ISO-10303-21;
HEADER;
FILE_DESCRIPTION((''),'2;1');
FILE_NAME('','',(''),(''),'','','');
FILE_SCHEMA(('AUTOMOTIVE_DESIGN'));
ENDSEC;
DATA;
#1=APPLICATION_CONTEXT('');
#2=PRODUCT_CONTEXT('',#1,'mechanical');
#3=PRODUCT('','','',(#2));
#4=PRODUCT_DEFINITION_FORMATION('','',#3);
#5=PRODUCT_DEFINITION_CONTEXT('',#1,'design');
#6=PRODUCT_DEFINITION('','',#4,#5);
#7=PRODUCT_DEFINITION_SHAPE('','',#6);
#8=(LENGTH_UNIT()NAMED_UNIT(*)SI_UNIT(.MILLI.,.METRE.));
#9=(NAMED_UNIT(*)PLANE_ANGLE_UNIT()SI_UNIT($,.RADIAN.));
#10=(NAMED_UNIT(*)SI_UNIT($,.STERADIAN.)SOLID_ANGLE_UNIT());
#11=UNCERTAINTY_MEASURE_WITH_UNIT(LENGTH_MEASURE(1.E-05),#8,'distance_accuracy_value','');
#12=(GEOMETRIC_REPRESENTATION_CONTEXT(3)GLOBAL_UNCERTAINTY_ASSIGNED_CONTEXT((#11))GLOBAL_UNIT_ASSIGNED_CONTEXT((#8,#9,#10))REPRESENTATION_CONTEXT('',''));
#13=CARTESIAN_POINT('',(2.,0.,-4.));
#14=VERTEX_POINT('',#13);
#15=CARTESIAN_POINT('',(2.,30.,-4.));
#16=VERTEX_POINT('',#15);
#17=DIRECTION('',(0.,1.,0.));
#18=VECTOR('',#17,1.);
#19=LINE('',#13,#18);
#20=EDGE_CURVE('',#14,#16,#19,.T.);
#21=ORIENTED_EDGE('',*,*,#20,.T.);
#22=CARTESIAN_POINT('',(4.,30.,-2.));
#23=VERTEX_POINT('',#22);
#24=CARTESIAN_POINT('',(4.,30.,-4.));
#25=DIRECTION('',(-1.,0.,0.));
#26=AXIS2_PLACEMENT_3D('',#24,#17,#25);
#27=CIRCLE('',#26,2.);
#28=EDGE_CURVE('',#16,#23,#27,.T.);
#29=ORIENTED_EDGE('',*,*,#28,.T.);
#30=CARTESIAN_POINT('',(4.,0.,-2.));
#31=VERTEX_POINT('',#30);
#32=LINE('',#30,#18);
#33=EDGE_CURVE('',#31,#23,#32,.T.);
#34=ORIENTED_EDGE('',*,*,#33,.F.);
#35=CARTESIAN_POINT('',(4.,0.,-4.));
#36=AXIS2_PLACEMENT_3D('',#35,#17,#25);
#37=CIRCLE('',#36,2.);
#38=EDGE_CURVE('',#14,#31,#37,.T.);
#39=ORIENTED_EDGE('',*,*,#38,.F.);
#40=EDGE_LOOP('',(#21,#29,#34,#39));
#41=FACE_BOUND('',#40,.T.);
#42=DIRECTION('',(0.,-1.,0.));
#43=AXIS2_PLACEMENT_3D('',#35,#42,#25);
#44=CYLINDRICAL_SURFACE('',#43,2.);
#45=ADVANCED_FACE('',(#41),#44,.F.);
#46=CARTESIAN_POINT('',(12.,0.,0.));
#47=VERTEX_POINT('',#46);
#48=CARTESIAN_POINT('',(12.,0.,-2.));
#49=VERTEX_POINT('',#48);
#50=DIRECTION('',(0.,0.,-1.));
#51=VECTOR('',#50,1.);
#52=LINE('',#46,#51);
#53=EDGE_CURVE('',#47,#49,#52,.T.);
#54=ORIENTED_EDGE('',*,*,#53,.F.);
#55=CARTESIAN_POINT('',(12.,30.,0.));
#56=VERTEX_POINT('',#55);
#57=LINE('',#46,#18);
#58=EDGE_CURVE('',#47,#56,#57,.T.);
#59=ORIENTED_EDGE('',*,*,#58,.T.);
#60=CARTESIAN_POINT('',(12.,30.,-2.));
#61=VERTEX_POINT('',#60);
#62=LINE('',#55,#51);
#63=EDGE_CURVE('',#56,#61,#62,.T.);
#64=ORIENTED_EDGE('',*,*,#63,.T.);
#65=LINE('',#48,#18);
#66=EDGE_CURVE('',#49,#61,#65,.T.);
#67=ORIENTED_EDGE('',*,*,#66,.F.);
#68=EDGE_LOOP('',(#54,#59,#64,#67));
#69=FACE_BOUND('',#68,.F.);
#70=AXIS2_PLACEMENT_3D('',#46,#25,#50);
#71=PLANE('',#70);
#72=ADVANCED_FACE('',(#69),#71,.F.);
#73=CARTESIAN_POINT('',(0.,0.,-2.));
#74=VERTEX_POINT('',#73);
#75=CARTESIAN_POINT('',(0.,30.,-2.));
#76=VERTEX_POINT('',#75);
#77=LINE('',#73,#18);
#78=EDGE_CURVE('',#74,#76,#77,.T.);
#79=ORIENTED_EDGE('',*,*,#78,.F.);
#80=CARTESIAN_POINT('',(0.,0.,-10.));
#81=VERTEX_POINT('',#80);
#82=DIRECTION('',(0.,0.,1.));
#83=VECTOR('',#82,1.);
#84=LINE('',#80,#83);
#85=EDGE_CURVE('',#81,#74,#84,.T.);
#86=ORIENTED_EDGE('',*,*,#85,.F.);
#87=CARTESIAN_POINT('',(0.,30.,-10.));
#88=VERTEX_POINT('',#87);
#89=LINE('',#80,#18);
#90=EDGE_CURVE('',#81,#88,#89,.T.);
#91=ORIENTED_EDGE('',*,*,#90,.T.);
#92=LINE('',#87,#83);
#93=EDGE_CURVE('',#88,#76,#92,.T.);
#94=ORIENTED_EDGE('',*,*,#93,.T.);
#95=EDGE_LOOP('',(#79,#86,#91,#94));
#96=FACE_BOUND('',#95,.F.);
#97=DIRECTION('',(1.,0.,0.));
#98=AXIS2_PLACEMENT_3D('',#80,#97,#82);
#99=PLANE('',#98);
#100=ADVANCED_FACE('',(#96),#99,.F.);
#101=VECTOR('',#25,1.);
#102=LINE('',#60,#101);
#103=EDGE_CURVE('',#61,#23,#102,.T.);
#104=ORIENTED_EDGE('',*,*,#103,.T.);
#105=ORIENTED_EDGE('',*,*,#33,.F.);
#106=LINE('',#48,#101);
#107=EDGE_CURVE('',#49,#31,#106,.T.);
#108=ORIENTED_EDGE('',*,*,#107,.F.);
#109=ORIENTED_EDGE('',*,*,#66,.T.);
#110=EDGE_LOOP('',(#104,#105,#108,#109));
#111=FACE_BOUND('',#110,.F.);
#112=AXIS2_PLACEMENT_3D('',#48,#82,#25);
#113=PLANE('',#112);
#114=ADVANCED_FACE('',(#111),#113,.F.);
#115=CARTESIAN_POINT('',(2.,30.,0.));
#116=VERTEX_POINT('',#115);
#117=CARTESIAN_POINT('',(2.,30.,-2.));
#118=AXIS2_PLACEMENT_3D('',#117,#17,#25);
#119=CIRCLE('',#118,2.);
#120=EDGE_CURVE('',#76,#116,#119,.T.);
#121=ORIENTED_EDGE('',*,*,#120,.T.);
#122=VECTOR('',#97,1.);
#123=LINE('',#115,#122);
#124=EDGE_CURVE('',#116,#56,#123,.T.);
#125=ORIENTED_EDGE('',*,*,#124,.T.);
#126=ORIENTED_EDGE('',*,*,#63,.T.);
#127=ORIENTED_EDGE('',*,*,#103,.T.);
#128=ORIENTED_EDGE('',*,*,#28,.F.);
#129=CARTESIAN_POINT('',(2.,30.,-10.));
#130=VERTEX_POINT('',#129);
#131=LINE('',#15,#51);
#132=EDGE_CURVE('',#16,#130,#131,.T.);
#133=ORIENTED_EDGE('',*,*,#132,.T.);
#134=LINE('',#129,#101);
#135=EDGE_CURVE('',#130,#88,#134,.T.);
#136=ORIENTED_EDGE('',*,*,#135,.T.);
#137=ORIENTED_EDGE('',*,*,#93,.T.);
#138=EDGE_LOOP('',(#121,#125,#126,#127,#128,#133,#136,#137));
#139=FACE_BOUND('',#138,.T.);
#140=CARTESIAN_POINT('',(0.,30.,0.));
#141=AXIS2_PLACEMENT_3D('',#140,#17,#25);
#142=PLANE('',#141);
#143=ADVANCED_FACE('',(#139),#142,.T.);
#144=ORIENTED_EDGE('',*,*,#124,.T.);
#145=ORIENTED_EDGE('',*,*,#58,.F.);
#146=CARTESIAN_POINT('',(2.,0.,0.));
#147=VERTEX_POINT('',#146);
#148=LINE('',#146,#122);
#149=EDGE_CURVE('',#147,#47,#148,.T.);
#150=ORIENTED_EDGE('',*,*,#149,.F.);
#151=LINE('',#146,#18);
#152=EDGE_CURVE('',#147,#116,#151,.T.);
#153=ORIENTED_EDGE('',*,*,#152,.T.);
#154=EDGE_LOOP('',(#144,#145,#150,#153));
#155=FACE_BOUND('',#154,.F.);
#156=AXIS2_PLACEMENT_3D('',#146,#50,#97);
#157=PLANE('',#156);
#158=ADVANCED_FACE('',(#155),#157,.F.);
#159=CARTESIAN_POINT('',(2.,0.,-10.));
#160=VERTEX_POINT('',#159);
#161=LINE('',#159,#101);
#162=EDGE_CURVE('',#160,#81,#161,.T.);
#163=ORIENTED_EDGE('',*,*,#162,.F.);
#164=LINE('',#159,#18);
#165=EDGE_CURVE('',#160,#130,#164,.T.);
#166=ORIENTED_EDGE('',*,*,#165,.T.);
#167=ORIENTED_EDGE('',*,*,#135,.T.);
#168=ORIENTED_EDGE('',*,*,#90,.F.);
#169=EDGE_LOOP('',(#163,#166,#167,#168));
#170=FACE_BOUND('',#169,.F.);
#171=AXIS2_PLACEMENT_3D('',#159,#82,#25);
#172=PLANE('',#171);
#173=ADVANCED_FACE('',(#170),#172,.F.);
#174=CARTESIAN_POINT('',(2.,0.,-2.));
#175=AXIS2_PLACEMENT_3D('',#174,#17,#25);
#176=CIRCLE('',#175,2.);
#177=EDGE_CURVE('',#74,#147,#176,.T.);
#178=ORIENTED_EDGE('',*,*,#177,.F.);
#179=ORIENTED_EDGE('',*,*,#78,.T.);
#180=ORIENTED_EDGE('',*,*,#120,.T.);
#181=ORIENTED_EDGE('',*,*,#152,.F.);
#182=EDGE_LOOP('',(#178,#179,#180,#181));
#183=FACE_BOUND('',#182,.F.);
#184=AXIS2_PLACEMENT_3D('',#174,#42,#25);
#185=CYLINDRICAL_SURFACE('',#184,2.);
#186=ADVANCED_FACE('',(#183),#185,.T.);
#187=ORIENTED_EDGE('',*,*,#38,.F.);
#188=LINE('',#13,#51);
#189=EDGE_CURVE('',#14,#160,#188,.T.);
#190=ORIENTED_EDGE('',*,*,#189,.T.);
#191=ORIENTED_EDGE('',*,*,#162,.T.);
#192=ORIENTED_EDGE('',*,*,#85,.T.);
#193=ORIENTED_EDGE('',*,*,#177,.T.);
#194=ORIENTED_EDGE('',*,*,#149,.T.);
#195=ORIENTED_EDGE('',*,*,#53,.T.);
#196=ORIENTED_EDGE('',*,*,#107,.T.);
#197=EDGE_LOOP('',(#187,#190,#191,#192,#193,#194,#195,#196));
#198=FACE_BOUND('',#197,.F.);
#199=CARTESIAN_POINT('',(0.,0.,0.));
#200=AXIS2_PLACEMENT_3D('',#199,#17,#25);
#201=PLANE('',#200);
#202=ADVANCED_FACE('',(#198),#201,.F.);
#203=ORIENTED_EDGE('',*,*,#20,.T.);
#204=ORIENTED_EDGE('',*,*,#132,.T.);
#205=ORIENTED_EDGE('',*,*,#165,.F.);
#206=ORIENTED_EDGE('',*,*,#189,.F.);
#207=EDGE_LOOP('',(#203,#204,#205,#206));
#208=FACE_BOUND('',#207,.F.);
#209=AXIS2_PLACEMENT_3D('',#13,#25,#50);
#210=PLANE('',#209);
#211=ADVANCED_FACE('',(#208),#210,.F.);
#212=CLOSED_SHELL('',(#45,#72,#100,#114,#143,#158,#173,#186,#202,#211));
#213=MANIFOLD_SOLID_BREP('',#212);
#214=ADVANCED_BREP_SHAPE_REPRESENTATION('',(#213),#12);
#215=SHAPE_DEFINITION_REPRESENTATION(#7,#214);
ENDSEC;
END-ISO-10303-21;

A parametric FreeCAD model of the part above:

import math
import FreeCAD as App
import Part
import Sketcher
Q = App.Units.Quantity

doc = App.newDocument("Part")
params = doc.addObject("Spreadsheet::Sheet", "Params")
for row, (alias, value) in enumerate([
    ("sketch1_radius", "2 mm"),
    ("sketch1_width", "10 mm"),
    ("pad1_length", "30 mm"),
], start=1):
    params.set(f"A{row}", alias)
    params.set(f"B{row}", "=" + value)
    params.setAlias(f"B{row}", alias)

body = doc.addObject("PartDesign::Body", "Body")

sketch1 = body.newObject("Sketcher::SketchObject", "Sketch")
sketch1.AttachmentSupport = (doc.getObject("XZ_Plane"), [""])
sketch1.MapMode = "FlatFace"
sketch1.addGeometry([
    Part.ArcOfCircle(Part.Circle(App.Vector(4, -4, 0), App.Vector(0, 0, 1), 2), math.radians(90), math.radians(180)),
    Part.LineSegment(App.Vector(2, -4, 0), App.Vector(2, -10, 0)),
    Part.LineSegment(App.Vector(2, -10, 0), App.Vector(0, -10, 0)),
    Part.LineSegment(App.Vector(0, -10, 0), App.Vector(0, -2, 0)),
    Part.ArcOfCircle(Part.Circle(App.Vector(2, -2, 0), App.Vector(0, 0, 1), 2), math.radians(90), math.radians(180)),
    Part.LineSegment(App.Vector(2, 0, 0), App.Vector(12, 0, 0)),
    Part.LineSegment(App.Vector(12, 0, 0), App.Vector(12, -2, 0)),
    Part.LineSegment(App.Vector(12, -2, 0), App.Vector(4, -2, 0)),
], False)
sketch1.addConstraint([
    Sketcher.Constraint("Tangent", 0, 2, 1, 1),
    Sketcher.Constraint("Coincident", 1, 2, 2, 1),
    Sketcher.Constraint("Coincident", 2, 2, 3, 1),
    Sketcher.Constraint("Tangent", 3, 2, 4, 2),
    Sketcher.Constraint("Tangent", 4, 1, 5, 1),
    Sketcher.Constraint("Coincident", 5, 2, 6, 1),
    Sketcher.Constraint("Coincident", 6, 2, 7, 1),
    Sketcher.Constraint("Tangent", 7, 2, 0, 1),
    Sketcher.Constraint("Vertical", 1),
    Sketcher.Constraint("Horizontal", 2),
    Sketcher.Constraint("Vertical", 3),
    Sketcher.Constraint("Horizontal", 5),
    Sketcher.Constraint("Vertical", 6),
    Sketcher.Constraint("Horizontal", 7),
    Sketcher.Constraint("Equal", 0, 4),
    Sketcher.Constraint("PointOnObject", 2, 2, -2),
    Sketcher.Constraint("PointOnObject", 4, 1, -1),
    Sketcher.Constraint("Horizontal", 3, 2, 6, 2),
    Sketcher.Constraint("Vertical", 4, 3, 0, 2),
    Sketcher.Constraint("Equal", 7, 3),
    Sketcher.Constraint("Radius", 0, Q("2 mm")),
    Sketcher.Constraint("DistanceX", 5, 1, 5, 2, Q("10 mm")),
])
sketch1.setExpression("Constraints[20]", "Params.sketch1_radius")
sketch1.setExpression("Constraints[21]", "Params.sketch1_width")
pad1 = body.newObject("PartDesign::Pad", "Pad")
pad1.Profile = sketch1
pad1.setExpression("Length", "Params.pad1_length")
pad1.Reversed = True

doc.recompute()
